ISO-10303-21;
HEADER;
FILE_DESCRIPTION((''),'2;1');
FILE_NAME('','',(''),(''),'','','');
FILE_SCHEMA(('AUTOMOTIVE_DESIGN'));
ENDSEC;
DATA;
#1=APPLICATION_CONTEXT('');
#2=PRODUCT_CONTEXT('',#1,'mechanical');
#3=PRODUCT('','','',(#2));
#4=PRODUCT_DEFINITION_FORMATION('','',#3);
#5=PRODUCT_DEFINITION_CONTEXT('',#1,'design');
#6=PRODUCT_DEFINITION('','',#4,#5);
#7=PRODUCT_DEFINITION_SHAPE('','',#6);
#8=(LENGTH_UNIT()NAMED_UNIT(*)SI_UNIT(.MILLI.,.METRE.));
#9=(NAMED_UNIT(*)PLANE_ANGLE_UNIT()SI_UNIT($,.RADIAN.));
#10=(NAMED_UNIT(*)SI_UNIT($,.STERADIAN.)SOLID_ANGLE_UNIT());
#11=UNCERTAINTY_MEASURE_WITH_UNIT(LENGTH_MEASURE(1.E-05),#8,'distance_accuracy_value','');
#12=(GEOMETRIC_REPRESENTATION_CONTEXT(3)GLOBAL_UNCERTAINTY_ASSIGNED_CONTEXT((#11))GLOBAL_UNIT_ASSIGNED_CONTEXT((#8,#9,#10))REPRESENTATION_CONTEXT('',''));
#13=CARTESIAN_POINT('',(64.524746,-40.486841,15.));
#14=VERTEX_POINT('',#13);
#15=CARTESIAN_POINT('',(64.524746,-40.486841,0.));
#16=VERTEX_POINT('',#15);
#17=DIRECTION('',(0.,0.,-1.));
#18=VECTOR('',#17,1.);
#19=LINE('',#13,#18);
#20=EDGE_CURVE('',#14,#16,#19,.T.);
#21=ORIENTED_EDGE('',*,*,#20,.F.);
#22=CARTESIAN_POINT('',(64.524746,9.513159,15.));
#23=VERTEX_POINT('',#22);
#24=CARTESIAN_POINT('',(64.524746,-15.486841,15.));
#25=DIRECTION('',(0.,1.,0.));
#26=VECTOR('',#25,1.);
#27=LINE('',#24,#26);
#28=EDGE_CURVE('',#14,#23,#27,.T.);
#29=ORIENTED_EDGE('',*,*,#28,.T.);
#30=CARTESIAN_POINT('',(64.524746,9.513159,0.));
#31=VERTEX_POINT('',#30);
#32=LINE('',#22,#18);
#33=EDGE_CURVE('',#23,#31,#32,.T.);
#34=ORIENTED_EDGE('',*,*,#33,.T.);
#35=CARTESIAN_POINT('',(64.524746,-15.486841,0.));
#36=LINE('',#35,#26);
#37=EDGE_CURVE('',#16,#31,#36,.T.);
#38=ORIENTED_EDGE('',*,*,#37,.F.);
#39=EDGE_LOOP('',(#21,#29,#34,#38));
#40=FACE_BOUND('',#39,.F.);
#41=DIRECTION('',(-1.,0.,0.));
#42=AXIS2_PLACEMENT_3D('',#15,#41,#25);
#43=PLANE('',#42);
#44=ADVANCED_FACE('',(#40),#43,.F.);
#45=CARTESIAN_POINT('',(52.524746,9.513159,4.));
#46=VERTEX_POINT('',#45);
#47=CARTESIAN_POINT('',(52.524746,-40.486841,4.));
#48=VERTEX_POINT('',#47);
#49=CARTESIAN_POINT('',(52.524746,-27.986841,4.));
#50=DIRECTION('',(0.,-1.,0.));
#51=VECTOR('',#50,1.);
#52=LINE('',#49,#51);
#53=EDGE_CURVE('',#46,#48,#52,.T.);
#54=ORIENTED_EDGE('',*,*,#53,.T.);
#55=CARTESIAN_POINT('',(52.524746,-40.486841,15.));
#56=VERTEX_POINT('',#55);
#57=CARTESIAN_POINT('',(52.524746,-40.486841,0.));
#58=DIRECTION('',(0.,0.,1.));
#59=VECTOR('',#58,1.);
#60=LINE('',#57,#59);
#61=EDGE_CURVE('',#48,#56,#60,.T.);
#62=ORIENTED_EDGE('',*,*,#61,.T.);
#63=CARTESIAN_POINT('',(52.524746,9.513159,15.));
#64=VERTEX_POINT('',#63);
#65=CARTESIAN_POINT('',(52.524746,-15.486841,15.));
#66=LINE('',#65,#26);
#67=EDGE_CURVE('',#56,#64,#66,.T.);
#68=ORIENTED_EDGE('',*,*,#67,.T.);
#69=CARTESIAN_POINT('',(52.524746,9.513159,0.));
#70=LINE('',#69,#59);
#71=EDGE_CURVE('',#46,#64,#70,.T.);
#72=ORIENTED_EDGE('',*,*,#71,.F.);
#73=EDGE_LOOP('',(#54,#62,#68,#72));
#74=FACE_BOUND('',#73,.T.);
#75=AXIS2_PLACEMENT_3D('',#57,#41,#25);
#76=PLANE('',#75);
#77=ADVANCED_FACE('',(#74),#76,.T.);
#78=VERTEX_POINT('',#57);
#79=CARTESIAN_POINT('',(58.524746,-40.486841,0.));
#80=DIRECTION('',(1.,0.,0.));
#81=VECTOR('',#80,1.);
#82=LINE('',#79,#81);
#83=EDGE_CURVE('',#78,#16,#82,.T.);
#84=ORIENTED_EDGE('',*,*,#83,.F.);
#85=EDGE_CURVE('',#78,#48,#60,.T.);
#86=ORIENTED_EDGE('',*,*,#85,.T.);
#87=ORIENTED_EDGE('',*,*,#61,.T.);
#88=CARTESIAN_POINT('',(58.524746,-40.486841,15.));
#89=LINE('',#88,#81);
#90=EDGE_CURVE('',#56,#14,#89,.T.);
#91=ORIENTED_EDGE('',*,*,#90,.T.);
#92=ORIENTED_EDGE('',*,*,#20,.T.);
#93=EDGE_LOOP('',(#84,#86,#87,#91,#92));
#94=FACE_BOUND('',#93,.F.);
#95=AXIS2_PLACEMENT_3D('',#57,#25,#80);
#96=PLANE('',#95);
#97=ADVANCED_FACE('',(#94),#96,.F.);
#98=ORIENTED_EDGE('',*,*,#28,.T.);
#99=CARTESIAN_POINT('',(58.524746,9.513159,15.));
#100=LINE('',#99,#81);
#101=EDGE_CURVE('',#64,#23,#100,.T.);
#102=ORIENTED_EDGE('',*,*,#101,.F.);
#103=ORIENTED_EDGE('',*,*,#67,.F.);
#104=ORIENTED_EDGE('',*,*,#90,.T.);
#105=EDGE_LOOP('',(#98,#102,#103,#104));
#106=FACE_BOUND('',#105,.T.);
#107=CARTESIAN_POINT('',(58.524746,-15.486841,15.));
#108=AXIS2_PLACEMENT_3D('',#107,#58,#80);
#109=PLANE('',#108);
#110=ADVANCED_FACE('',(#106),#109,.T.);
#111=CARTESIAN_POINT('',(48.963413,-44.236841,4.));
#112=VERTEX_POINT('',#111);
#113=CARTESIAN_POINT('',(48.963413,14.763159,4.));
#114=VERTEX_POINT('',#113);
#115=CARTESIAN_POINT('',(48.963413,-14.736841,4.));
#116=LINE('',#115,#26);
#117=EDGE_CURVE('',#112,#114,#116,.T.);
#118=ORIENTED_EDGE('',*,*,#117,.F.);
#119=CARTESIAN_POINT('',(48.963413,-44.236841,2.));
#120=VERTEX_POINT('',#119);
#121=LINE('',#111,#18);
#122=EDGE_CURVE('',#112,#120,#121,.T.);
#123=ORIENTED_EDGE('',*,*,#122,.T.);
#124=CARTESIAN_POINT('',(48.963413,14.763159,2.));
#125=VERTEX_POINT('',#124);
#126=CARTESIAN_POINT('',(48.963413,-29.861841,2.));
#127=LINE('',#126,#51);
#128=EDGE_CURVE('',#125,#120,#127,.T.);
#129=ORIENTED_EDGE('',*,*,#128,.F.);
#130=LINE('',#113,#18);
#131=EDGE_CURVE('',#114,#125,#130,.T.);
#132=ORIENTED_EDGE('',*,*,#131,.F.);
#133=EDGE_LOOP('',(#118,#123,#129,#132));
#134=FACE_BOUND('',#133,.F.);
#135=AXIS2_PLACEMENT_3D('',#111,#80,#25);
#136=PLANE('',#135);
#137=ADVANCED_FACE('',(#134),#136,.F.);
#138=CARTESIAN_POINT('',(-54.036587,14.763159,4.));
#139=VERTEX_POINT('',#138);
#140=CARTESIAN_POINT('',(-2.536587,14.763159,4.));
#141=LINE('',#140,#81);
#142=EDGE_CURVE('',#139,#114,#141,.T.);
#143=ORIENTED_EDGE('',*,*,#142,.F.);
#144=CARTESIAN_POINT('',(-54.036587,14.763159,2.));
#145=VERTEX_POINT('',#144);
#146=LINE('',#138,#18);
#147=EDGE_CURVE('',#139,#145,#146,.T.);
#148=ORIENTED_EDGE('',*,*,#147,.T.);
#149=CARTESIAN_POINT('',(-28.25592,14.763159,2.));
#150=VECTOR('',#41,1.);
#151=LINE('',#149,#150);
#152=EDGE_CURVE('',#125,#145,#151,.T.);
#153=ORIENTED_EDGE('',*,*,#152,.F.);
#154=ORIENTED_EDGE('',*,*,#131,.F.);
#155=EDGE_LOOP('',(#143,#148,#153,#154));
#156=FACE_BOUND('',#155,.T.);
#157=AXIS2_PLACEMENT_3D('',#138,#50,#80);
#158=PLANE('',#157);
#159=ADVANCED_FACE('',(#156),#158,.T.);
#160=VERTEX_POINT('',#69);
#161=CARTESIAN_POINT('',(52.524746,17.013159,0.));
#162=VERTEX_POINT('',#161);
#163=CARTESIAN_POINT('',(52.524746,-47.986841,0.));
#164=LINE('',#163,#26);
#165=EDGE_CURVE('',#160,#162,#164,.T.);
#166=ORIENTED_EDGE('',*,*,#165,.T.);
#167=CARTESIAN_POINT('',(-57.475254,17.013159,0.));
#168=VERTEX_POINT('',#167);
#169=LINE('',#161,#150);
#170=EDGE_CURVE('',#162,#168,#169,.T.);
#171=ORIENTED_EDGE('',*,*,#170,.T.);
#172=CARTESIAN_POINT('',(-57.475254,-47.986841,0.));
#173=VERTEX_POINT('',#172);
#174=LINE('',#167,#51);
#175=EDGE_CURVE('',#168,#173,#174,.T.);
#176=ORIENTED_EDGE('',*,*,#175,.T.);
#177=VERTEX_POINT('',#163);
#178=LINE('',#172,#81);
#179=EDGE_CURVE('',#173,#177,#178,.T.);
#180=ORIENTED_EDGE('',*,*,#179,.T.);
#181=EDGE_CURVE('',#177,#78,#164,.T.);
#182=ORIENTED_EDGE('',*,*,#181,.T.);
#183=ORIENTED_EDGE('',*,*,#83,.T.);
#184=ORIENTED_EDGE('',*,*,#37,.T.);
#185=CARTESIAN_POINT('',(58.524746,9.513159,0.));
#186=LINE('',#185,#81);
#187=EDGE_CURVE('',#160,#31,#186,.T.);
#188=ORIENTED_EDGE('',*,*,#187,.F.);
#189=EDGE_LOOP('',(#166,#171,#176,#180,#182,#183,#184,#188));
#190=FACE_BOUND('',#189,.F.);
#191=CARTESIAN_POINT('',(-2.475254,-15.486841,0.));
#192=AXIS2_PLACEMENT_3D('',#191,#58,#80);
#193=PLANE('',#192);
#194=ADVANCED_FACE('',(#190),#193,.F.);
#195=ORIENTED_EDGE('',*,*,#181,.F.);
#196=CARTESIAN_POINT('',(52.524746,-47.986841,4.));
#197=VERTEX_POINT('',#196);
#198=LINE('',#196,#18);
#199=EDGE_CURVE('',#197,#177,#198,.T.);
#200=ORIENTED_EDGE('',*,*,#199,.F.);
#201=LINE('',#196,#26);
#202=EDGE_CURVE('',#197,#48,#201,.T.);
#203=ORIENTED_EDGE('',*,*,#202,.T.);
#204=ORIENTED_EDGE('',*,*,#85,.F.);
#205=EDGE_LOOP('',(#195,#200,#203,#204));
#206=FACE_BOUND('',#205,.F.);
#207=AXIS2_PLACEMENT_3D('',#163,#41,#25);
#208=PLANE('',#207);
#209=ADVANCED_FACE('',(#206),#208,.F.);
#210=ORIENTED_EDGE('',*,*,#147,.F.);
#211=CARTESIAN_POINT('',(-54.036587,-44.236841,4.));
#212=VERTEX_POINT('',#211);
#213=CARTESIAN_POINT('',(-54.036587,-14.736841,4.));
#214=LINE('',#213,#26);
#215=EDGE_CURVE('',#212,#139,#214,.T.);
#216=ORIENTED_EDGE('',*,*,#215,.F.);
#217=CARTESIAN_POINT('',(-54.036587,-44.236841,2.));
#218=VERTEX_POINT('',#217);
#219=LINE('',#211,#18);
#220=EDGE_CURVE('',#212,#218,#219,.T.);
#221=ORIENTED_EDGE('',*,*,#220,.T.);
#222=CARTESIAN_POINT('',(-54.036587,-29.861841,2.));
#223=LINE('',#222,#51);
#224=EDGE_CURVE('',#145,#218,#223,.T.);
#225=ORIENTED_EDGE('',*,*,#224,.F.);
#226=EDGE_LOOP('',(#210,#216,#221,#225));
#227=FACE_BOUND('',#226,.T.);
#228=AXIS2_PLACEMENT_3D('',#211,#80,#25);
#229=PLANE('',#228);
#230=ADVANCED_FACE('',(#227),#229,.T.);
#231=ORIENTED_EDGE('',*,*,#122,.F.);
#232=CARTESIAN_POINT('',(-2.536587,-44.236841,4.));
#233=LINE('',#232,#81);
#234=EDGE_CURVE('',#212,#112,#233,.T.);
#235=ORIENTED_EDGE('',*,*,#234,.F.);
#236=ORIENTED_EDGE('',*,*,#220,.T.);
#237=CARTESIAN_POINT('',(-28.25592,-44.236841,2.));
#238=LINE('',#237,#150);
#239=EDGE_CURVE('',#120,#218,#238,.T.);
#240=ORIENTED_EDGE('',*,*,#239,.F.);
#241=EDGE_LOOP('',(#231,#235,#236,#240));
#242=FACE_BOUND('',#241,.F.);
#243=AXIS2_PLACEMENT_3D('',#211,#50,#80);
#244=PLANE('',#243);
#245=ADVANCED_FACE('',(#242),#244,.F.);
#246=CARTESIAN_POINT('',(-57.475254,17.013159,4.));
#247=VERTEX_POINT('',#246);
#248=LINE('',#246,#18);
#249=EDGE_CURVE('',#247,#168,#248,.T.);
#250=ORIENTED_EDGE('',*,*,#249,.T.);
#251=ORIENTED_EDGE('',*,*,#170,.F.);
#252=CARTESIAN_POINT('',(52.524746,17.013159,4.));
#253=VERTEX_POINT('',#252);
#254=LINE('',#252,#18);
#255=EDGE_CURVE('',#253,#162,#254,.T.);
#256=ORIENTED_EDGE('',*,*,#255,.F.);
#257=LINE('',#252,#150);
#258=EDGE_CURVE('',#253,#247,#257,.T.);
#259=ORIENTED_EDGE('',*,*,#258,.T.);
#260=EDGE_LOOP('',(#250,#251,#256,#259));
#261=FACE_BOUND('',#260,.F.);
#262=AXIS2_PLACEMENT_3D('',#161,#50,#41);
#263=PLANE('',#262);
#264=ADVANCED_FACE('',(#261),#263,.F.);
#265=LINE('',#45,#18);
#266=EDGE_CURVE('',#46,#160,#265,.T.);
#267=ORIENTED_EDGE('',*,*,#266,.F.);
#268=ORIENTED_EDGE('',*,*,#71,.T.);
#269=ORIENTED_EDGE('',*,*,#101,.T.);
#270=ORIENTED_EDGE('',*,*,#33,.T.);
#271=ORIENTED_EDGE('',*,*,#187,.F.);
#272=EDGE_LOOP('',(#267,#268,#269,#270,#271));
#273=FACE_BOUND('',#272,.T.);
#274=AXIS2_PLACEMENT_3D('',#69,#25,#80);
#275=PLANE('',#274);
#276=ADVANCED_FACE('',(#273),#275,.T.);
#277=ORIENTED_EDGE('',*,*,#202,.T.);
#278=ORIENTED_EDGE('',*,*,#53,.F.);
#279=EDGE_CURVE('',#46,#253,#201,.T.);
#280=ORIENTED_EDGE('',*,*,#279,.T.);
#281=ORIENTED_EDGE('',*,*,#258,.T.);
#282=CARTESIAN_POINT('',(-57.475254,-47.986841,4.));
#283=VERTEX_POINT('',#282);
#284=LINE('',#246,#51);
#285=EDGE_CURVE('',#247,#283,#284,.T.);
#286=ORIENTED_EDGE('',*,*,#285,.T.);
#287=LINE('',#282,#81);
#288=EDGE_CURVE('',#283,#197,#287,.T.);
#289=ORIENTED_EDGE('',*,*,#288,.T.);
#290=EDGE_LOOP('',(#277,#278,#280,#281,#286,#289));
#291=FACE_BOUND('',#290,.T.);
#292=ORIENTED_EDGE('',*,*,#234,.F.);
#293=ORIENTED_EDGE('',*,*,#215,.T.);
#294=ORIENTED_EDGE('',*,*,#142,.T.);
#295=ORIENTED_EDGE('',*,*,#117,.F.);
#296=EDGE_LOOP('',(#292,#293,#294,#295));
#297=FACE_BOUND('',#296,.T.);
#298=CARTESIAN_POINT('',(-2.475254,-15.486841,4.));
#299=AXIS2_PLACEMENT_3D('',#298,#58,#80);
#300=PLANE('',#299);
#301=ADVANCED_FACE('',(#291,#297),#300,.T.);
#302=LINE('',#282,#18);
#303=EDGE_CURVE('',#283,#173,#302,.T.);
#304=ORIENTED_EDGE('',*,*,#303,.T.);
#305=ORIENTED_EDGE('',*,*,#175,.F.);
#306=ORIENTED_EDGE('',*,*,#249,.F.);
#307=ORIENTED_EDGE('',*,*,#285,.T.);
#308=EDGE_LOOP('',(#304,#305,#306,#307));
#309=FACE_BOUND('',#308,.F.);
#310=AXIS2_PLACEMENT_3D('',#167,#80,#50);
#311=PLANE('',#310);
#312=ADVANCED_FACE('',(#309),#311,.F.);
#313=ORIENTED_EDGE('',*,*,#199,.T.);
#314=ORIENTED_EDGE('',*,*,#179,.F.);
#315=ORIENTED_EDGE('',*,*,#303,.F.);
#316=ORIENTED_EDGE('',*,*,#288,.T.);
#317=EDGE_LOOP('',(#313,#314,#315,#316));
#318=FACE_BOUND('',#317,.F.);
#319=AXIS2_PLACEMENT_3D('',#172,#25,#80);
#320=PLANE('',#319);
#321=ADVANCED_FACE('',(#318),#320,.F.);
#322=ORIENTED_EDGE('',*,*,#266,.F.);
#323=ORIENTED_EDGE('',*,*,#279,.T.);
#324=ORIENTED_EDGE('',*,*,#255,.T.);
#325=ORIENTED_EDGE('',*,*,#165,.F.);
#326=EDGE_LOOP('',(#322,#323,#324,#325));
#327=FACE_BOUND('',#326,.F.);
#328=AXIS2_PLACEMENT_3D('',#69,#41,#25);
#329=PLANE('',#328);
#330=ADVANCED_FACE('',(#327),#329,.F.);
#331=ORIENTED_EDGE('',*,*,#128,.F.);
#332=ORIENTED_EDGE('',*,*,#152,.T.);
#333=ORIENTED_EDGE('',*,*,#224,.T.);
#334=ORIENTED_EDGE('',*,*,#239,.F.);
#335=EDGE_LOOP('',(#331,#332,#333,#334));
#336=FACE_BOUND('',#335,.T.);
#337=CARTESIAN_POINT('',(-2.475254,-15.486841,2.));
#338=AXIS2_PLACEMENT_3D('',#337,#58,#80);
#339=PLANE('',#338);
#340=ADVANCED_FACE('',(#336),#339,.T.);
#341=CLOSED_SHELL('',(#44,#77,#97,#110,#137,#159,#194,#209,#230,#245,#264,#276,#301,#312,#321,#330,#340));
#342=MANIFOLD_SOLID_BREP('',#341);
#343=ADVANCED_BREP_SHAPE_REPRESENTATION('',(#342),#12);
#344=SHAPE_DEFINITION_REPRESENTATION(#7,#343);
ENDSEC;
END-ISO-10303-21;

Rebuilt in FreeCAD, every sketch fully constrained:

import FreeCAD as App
import Part
import Sketcher

V = App.Vector
Q = App.Units.Quantity

doc = App.newDocument("Part")
params = doc.addObject("Spreadsheet::Sheet", "Params")
for row, (alias, value) in enumerate([
    ("sketch1_width", "110 mm"),
    ("sketch1_width2", "12 mm"),
    ("sketch1_height", "65 mm"),
    ("sketch1_height2", "50 mm"),
    ("pad1_length", "4 mm"),
    ("sketch2_width", "103 mm"),
    ("sketch2_height", "59 mm"),
    ("pocket1_length", "8 mm"),
    ("sketch3_width", "12 mm"),
    ("sketch3_height", "50 mm"),
    ("pad2_length", "15 mm"),
    ("sketch4_width", "110 mm"),
    ("sketch4_height", "65 mm"),
    ("pad3_length", "2 mm"),
], start=1):
    params.set(f"A{row}", alias)
    params.set(f"B{row}", "=" + value)
    params.setAlias(f"B{row}", alias)

body = doc.addObject("PartDesign::Body", "Body")

# Sketch on XY plane
sketch1 = body.newObject("Sketcher::SketchObject", "Sketch")
sketch1.AttachmentSupport = (doc.getObject("XY_Plane"), [""])
sketch1.MapMode = "FlatFace"
sketch1.addGeometry(Part.LineSegment(V(-57.475254, 17.013159, 0), V(-57.475254, -47.986841, 0)), False)
sketch1.addGeometry(Part.LineSegment(V(-57.475254, -47.986841, 0), V(52.524746, -47.986841, 0)), False)
sketch1.addGeometry(Part.LineSegment(V(52.524746, -47.986841, 0), V(52.524746, -40.486841, 0)), False)
sketch1.addGeometry(Part.LineSegment(V(52.524746, -40.486841, 0), V(64.524746, -40.486841, 0)), False)
sketch1.addGeometry(Part.LineSegment(V(64.524746, -40.486841, 0), V(64.524746, 9.513159, 0)), False)
sketch1.addGeometry(Part.LineSegment(V(64.524746, 9.513159, 0), V(52.524746, 9.513159, 0)), False)
sketch1.addGeometry(Part.LineSegment(V(52.524746, 9.513159, 0), V(52.524746, 17.013159, 0)), False)
sketch1.addGeometry(Part.LineSegment(V(52.524746, 17.013159, 0), V(-57.475254, 17.013159, 0)), False)
sketch1.addConstraint(Sketcher.Constraint("Coincident", 0, 2, 1, 1))
sketch1.addConstraint(Sketcher.Constraint("Coincident", 1, 2, 2, 1))
sketch1.addConstraint(Sketcher.Constraint("Coincident", 2, 2, 3, 1))
sketch1.addConstraint(Sketcher.Constraint("Coincident", 3, 2, 4, 1))
sketch1.addConstraint(Sketcher.Constraint("Coincident", 4, 2, 5, 1))
sketch1.addConstraint(Sketcher.Constraint("Coincident", 5, 2, 6, 1))
sketch1.addConstraint(Sketcher.Constraint("Coincident", 6, 2, 7, 1))
sketch1.addConstraint(Sketcher.Constraint("Coincident", 7, 2, 0, 1))
sketch1.addConstraint(Sketcher.Constraint("Vertical", 0))
sketch1.addConstraint(Sketcher.Constraint("Horizontal", 1))
sketch1.addConstraint(Sketcher.Constraint("Vertical", 2))
sketch1.addConstraint(Sketcher.Constraint("Horizontal", 3))
sketch1.addConstraint(Sketcher.Constraint("Vertical", 4))
sketch1.addConstraint(Sketcher.Constraint("Horizontal", 5))
sketch1.addConstraint(Sketcher.Constraint("Vertical", 6))
sketch1.addConstraint(Sketcher.Constraint("Horizontal", 7))
sketch1.addConstraint(Sketcher.Constraint("Vertical", 2, 2, 5, 2))
sketch1.addConstraint(Sketcher.Constraint("Equal", 2, 6))
sketch1.addConstraint(Sketcher.Constraint("DistanceX", 1, 1, 1, 2, Q("110 mm")))
sketch1.addConstraint(Sketcher.Constraint("DistanceX", 3, 1, 3, 2, Q("12 mm")))
sketch1.addConstraint(Sketcher.Constraint("DistanceY", 0, 2, 0, 1, Q("65 mm")))
sketch1.addConstraint(Sketcher.Constraint("DistanceY", 4, 1, 4, 2, Q("50 mm")))
sketch1.addConstraint(Sketcher.Constraint("DistanceY", 0, 2, -1, 1, Q("47.986841 mm")))
sketch1.addConstraint(Sketcher.Constraint("DistanceX", 0, 2, -1, 1, Q("57.475254 mm")))
sketch1.setExpression("Constraints[18]", "Params.sketch1_width")
sketch1.setExpression("Constraints[19]", "Params.sketch1_width2")
sketch1.setExpression("Constraints[20]", "Params.sketch1_height")
sketch1.setExpression("Constraints[21]", "Params.sketch1_height2")
pad1 = body.newObject("PartDesign::Pad", "Pad")
pad1.Profile = sketch1
pad1.setExpression("Length", "Params.pad1_length")

# Sketch on XY plane
sketch2 = body.newObject("Sketcher::SketchObject", "Sketch001")
sketch2.AttachmentSupport = (doc.getObject("XY_Plane"), [""])
sketch2.MapMode = "FlatFace"
sketch2.AttachmentOffset = App.Placement(V(0, 0, 4), App.Rotation())
sketch2.addGeometry(Part.LineSegment(V(-54.036587, 14.763159, 0), V(-54.036587, -44.236841, 0)), False)
sketch2.addGeometry(Part.LineSegment(V(-54.036587, -44.236841, 0), V(48.963413, -44.236841, 0)), False)
sketch2.addGeometry(Part.LineSegment(V(48.963413, -44.236841, 0), V(48.963413, 14.763159, 0)), False)
sketch2.addGeometry(Part.LineSegment(V(48.963413, 14.763159, 0), V(-54.036587, 14.763159, 0)), False)
sketch2.addConstraint(Sketcher.Constraint("Coincident", 0, 2, 1, 1))
sketch2.addConstraint(Sketcher.Constraint("Coincident", 1, 2, 2, 1))
sketch2.addConstraint(Sketcher.Constraint("Coincident", 2, 2, 3, 1))
sketch2.addConstraint(Sketcher.Constraint("Coincident", 3, 2, 0, 1))
sketch2.addConstraint(Sketcher.Constraint("Vertical", 0))
sketch2.addConstraint(Sketcher.Constraint("Horizontal", 1))
sketch2.addConstraint(Sketcher.Constraint("Vertical", 2))
sketch2.addConstraint(Sketcher.Constraint("Horizontal", 3))
sketch2.addConstraint(Sketcher.Constraint("DistanceX", 1, 1, 1, 2, Q("103 mm")))
sketch2.addConstraint(Sketcher.Constraint("DistanceY", 0, 2, 0, 1, Q("59 mm")))
sketch2.addConstraint(Sketcher.Constraint("DistanceY", 0, 2, -1, 1, Q("44.236841 mm")))
sketch2.addConstraint(Sketcher.Constraint("DistanceX", 0, 2, -1, 1, Q("54.036587 mm")))
sketch2.setExpression("Constraints[8]", "Params.sketch2_width")
sketch2.setExpression("Constraints[9]", "Params.sketch2_height")
pocket1 = body.newObject("PartDesign::Pocket", "Pocket")
pocket1.Profile = sketch2
pocket1.setExpression("Length", "Params.pocket1_length")

# Sketch on XY plane
sketch3 = body.newObject("Sketcher::SketchObject", "Sketch002")
sketch3.AttachmentSupport = (doc.getObject("XY_Plane"), [""])
sketch3.MapMode = "FlatFace"
sketch3.addGeometry(Part.LineSegment(V(52.524746, 9.513159, 0), V(52.524746, -40.486841, 0)), False)
sketch3.addGeometry(Part.LineSegment(V(52.524746, -40.486841, 0), V(64.524746, -40.486841, 0)), False)
sketch3.addGeometry(Part.LineSegment(V(64.524746, -40.486841, 0), V(64.524746, 9.513159, 0)), False)
sketch3.addGeometry(Part.LineSegment(V(64.524746, 9.513159, 0), V(52.524746, 9.513159, 0)), False)
sketch3.addConstraint(Sketcher.Constraint("Coincident", 0, 2, 1, 1))
sketch3.addConstraint(Sketcher.Constraint("Coincident", 1, 2, 2, 1))
sketch3.addConstraint(Sketcher.Constraint("Coincident", 2, 2, 3, 1))
sketch3.addConstraint(Sketcher.Constraint("Coincident", 3, 2, 0, 1))
sketch3.addConstraint(Sketcher.Constraint("Vertical", 0))
sketch3.addConstraint(Sketcher.Constraint("Horizontal", 1))
sketch3.addConstraint(Sketcher.Constraint("Vertical", 2))
sketch3.addConstraint(Sketcher.Constraint("Horizontal", 3))
sketch3.addConstraint(Sketcher.Constraint("DistanceX", 1, 1, 1, 2, Q("12 mm")))
sketch3.addConstraint(Sketcher.Constraint("DistanceY", 0, 2, 0, 1, Q("50 mm")))
sketch3.addConstraint(Sketcher.Constraint("DistanceY", 0, 2, -1, 1, Q("40.486841 mm")))
sketch3.addConstraint(Sketcher.Constraint("DistanceX", -1, 1, 0, 2, Q("52.524746 mm")))
sketch3.setExpression("Constraints[8]", "Params.sketch3_width")
sketch3.setExpression("Constraints[9]", "Params.sketch3_height")
pad2 = body.newObject("PartDesign::Pad", "Pad001")
pad2.Profile = sketch3
pad2.setExpression("Length", "Params.pad2_length")

# Sketch on XY plane
sketch4 = body.newObject("Sketcher::SketchObject", "Sketch003")
sketch4.AttachmentSupport = (doc.getObject("XY_Plane"), [""])
sketch4.MapMode = "FlatFace"
sketch4.addGeometry(Part.LineSegment(V(-57.475254, 17.013159, 0), V(-57.475254, -47.986841, 0)), False)
sketch4.addGeometry(Part.LineSegment(V(-57.475254, -47.986841, 0), V(52.524746, -47.986841, 0)), False)
sketch4.addGeometry(Part.LineSegment(V(52.524746, -47.986841, 0), V(52.524746, 17.013159, 0)), False)
sketch4.addGeometry(Part.LineSegment(V(52.524746, 17.013159, 0), V(-57.475254, 17.013159, 0)), False)
sketch4.addConstraint(Sketcher.Constraint("Coincident", 0, 2, 1, 1))
sketch4.addConstraint(Sketcher.Constraint("Coincident", 1, 2, 2, 1))
sketch4.addConstraint(Sketcher.Constraint("Coincident", 2, 2, 3, 1))
sketch4.addConstraint(Sketcher.Constraint("Coincident", 3, 2, 0, 1))
sketch4.addConstraint(Sketcher.Constraint("Vertical", 0))
sketch4.addConstraint(Sketcher.Constraint("Horizontal", 1))
sketch4.addConstraint(Sketcher.Constraint("Vertical", 2))
sketch4.addConstraint(Sketcher.Constraint("Horizontal", 3))
sketch4.addConstraint(Sketcher.Constraint("DistanceX", 1, 1, 1, 2, Q("110 mm")))
sketch4.addConstraint(Sketcher.Constraint("DistanceY", 0, 2, 0, 1, Q("65 mm")))
sketch4.addConstraint(Sketcher.Constraint("DistanceY", 0, 2, -1, 1, Q("47.986841 mm")))
sketch4.addConstraint(Sketcher.Constraint("DistanceX", 0, 2, -1, 1, Q("57.475254 mm")))
sketch4.setExpression("Constraints[8]", "Params.sketch4_width")
sketch4.setExpression("Constraints[9]", "Params.sketch4_height")
pad3 = body.newObject("PartDesign::Pad", "Pad002")
pad3.Profile = sketch4
pad3.setExpression("Length", "Params.pad3_length")

doc.recompute()
